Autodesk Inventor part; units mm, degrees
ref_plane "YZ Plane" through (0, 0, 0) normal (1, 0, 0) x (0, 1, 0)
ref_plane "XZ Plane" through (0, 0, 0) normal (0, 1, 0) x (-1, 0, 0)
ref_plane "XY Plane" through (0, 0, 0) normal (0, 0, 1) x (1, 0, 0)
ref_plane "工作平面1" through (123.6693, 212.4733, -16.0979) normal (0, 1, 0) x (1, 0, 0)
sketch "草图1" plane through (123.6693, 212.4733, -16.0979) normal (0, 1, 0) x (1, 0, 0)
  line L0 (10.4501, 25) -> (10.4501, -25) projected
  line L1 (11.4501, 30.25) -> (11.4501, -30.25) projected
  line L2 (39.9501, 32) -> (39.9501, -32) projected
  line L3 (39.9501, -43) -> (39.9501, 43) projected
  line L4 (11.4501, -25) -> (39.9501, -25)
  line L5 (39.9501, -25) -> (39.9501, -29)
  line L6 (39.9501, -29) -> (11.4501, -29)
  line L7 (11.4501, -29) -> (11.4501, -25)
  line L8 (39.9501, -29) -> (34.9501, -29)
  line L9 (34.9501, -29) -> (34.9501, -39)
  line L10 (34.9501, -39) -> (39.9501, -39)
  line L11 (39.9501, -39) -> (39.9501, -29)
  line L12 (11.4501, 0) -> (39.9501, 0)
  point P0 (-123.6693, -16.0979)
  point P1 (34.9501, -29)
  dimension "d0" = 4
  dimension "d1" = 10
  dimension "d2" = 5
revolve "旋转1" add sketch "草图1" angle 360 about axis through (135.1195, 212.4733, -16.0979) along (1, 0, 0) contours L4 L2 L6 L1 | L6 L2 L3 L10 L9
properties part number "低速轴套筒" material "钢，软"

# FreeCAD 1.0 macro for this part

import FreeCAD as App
import Part
import Sketcher


def add_polygon(sketch, points):
    """Adds a closed chain of lines whose ends are joined by coincident constraints."""
    first, n = sketch.GeometryCount, len(points)
    for a, b in zip(points, points[1:] + points[:1]):
        sketch.addGeometry(Part.LineSegment(App.Vector(*a, 0), App.Vector(*b, 0)), False)
    for i in range(n):
        sketch.addConstraint(Sketcher.Constraint("Coincident", first + i, 2, first + (i + 1) % n, 1))

doc = App.newDocument("Part")
params = doc.addObject("Spreadsheet::Sheet", "Params")
for row, (alias, value) in enumerate([
    ("sketch1_width", "5 mm"),
    ("sketch1_height", "4 mm"),
    ("sketch1_height2", "10 mm"),
    ("sketch1_width2", "28.5 mm"),
    ("revolution_angle", "360 deg"),
], start=1):
    params.set(f"A{row}", alias)
    params.set(f"B{row}", "=" + value)
    params.setAlias(f"B{row}", alias)

body = doc.addObject("PartDesign::Body", "Body")

# Sketch on XZ plane
sketch1 = body.newObject("Sketcher::SketchObject", "Sketch")
sketch1.AttachmentSupport = (doc.getObject("XZ_Plane"), [""])
sketch1.MapMode = "FlatFace"
sketch1.AttachmentOffset = App.Placement(App.Vector(0, 0, -212.4733), App.Rotation())
add_polygon(sketch1, [(163.6, 8.9), (135.1, 8.9), (135.1, 12.9), (158.6, 12.9), (158.6, 22.9), (163.6, 22.9)])  # lines 0-5
sketch1.addGeometry(Part.LineSegment(App.Vector(135.1, -16.1, 0), App.Vector(163.6, -16.1, 0)), True)  # axis
sketch1.addConstraint(Sketcher.Constraint("Horizontal", 0))
sketch1.addConstraint(Sketcher.Constraint("Vertical", 1))
sketch1.addConstraint(Sketcher.Constraint("Horizontal", 2))
sketch1.addConstraint(Sketcher.Constraint("Vertical", 3))
sketch1.addConstraint(Sketcher.Constraint("Horizontal", 4))
sketch1.addConstraint(Sketcher.Constraint("Vertical", 5))
sketch1.addConstraint(Sketcher.Constraint("Horizontal", 6))
sketch1.addConstraint(Sketcher.Constraint("Vertical", 1, 2, 6, 1))
sketch1.addConstraint(Sketcher.Constraint("Vertical", 5, 2, 6, 2))
sketch1.addConstraint(Sketcher.Constraint("DistanceX", 4, 1, 4, 2, 5.0))
sketch1.addConstraint(Sketcher.Constraint("DistanceY", 1, 1, 1, 2, 4.0))
sketch1.addConstraint(Sketcher.Constraint("DistanceY", 3, 1, 3, 2, 10.0))
sketch1.addConstraint(Sketcher.Constraint("DistanceX", 0, 2, 0, 1, 28.5))
sketch1.addConstraint(Sketcher.Constraint("DistanceY", 6, 1, 0, 2, 25.0))
sketch1.addConstraint(Sketcher.Constraint("DistanceY", -1, 1, 0, 2, 8.902))
sketch1.addConstraint(Sketcher.Constraint("DistanceX", -1, 1, 0, 2, 135.1194))
sketch1.setExpression("Constraints[15]", "Params.sketch1_width")
sketch1.setExpression("Constraints[16]", "Params.sketch1_height")
sketch1.setExpression("Constraints[17]", "Params.sketch1_height2")
sketch1.setExpression("Constraints[18]", "Params.sketch1_width2")
revolution = body.newObject("PartDesign::Revolution", "Revolution")
revolution.Profile = sketch1
revolution.ReferenceAxis = (sketch1, ["Axis0"])
revolution.setExpression("Angle", "Params.revolution_angle")

doc.recompute()
